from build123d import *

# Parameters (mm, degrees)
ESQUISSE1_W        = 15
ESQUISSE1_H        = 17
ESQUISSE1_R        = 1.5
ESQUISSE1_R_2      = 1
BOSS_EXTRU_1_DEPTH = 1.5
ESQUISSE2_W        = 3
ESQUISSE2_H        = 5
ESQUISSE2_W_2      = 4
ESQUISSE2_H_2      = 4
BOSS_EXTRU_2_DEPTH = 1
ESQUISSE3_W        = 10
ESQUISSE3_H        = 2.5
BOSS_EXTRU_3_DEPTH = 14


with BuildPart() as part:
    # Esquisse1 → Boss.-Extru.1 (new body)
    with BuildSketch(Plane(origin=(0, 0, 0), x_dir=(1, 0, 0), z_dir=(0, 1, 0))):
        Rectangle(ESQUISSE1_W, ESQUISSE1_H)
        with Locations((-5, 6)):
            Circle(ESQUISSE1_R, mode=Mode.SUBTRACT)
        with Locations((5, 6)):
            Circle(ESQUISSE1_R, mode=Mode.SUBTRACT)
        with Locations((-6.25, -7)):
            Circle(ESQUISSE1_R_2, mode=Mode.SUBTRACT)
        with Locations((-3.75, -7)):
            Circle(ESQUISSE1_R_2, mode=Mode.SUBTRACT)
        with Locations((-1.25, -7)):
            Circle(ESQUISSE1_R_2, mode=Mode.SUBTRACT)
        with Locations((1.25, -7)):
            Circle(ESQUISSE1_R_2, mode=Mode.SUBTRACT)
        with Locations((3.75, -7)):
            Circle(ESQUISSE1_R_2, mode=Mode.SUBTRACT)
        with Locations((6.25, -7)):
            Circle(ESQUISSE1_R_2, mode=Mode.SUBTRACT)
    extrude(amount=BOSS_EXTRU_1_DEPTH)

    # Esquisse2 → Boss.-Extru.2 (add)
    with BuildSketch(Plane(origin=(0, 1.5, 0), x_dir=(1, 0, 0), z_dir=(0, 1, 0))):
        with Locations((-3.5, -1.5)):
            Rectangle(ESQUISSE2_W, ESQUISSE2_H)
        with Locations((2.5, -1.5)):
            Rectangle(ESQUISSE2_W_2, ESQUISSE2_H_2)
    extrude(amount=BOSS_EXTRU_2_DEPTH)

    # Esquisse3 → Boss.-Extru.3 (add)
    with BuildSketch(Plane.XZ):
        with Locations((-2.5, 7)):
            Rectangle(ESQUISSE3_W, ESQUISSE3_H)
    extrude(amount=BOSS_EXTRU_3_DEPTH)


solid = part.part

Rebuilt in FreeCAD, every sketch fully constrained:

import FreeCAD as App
import Part
import Sketcher
Q = App.Units.Quantity

doc = App.newDocument("Part")
body = doc.addObject("PartDesign::Body", "Body")

sketch1 = doc.addObject("Sketcher::SketchObject", "Sketch")
body.addObject(sketch1)
sketch1.AttachmentSupport = (doc.XZ_Plane, [""])
sketch1.MapMode = "FlatFace"
sketch1.addGeometry([
    Part.LineSegment(App.Vector(-7.5, -8.5, 0), App.Vector(-7.5, 8.5, 0)),
    Part.LineSegment(App.Vector(-7.5, 8.5, 0), App.Vector(7.5, 8.5, 0)),
    Part.LineSegment(App.Vector(7.5, 8.5, 0), App.Vector(7.5, -8.5, 0)),
    Part.LineSegment(App.Vector(7.5, -8.5, 0), App.Vector(-7.5, -8.5, 0)),
    Part.Circle(App.Vector(-6.25, 7, 0), App.Vector(0, 0, 1), 1),
    Part.Circle(App.Vector(-3.75, 7, 0), App.Vector(0, 0, 1), 1),
    Part.Circle(App.Vector(-1.25, 7, 0), App.Vector(0, 0, 1), 1),
    Part.Circle(App.Vector(1.25, 7, 0), App.Vector(0, 0, 1), 1),
    Part.Circle(App.Vector(3.75, 7, 0), App.Vector(0, 0, 1), 1),
    Part.Circle(App.Vector(6.25, 7, 0), App.Vector(0, 0, 1), 1),
    Part.Circle(App.Vector(-5, -6, 0), App.Vector(0, 0, 1), 1.5),
    Part.Circle(App.Vector(5, -6, 0), App.Vector(0, 0, 1), 1.5),
], False)
sketch1.addConstraint([
    Sketcher.Constraint("Coincident", 0, 2, 1, 1),
    Sketcher.Constraint("Coincident", 1, 2, 2, 1),
    Sketcher.Constraint("Coincident", 2, 2, 3, 1),
    Sketcher.Constraint("Coincident", 3, 2, 0, 1),
    Sketcher.Constraint("Vertical", 0),
    Sketcher.Constraint("Horizontal", 1),
    Sketcher.Constraint("Vertical", 2),
    Sketcher.Constraint("Horizontal", 3),
    Sketcher.Constraint("Equal", 4, 5),
    Sketcher.Constraint("Equal", 5, 6),
    Sketcher.Constraint("Equal", 6, 7),
    Sketcher.Constraint("Equal", 7, 8),
    Sketcher.Constraint("Equal", 8, 9),
    Sketcher.Constraint("Equal", 10, 11),
    Sketcher.Constraint("Symmetric", 0, 2, 2, 2, -1, 1),
    Sketcher.Constraint("Symmetric", 6, 3, 7, 3, -2),
    Sketcher.Constraint("Symmetric", 5, 3, 8, 3, -2),
    Sketcher.Constraint("Symmetric", 4, 3, 9, 3, -2),
    Sketcher.Constraint("Symmetric", 10, 3, 11, 3, -2),
    Sketcher.Constraint("Horizontal", 4, 3, 5, 3),
    Sketcher.Constraint("Horizontal", 5, 3, 6, 3),
    Sketcher.Constraint("Diameter", 4, Q("2 mm")),
    Sketcher.Constraint("Diameter", 10, Q("3 mm")),
    Sketcher.Constraint("DistanceX", 1, 1, 1, 2, Q("15 mm")),
    Sketcher.Constraint("DistanceY", 0, 1, 0, 2, Q("17 mm")),
    Sketcher.Constraint("DistanceY", -1, 1, 4, 3, Q("7 mm")),
    Sketcher.Constraint("DistanceX", 10, 3, -1, 1, Q("5 mm")),
    Sketcher.Constraint("DistanceY", 10, 3, -1, 1, Q("6 mm")),
    Sketcher.Constraint("DistanceX", 4, 3, 6, 3, Q("5 mm")),
    Sketcher.Constraint("DistanceX", 5, 3, 7, 3, Q("5 mm")),
    Sketcher.Constraint("DistanceX", 4, 3, 5, 3, Q("2.5 mm")),
])
pad1 = doc.addObject("PartDesign::Pad", "Pad")
body.addObject(pad1)
pad1.Profile = sketch1
pad1.Length = 1.5
pad1.Reversed = True

sketch2 = doc.addObject("Sketcher::SketchObject", "Sketch001")
body.addObject(sketch2)
sketch2.AttachmentSupport = (doc.XZ_Plane, [""])
sketch2.MapMode = "FlatFace"
sketch2.AttachmentOffset = App.Placement(App.Vector(0, 0, -1.5), App.Rotation())
sketch2.addGeometry([
    Part.LineSegment(App.Vector(-5, -1, 0), App.Vector(-5, 4, 0)),
    Part.LineSegment(App.Vector(-5, 4, 0), App.Vector(-2, 4, 0)),
    Part.LineSegment(App.Vector(-2, 4, 0), App.Vector(-2, -1, 0)),
    Part.LineSegment(App.Vector(-2, -1, 0), App.Vector(-5, -1, 0)),
    Part.LineSegment(App.Vector(0.5, -0.5, 0), App.Vector(0.5, 3.5, 0)),
    Part.LineSegment(App.Vector(0.5, 3.5, 0), App.Vector(4.5, 3.5, 0)),
    Part.LineSegment(App.Vector(4.5, 3.5, 0), App.Vector(4.5, -0.5, 0)),
    Part.LineSegment(App.Vector(4.5, -0.5, 0), App.Vector(0.5, -0.5, 0)),
], False)
sketch2.addConstraint([
    Sketcher.Constraint("Coincident", 0, 2, 1, 1),
    Sketcher.Constraint("Coincident", 1, 2, 2, 1),
    Sketcher.Constraint("Coincident", 2, 2, 3, 1),
    Sketcher.Constraint("Coincident", 3, 2, 0, 1),
    Sketcher.Constraint("Coincident", 4, 2, 5, 1),
    Sketcher.Constraint("Coincident", 5, 2, 6, 1),
    Sketcher.Constraint("Coincident", 6, 2, 7, 1),
    Sketcher.Constraint("Coincident", 7, 2, 4, 1),
    Sketcher.Constraint("Vertical", 0),
    Sketcher.Constraint("Horizontal", 1),
    Sketcher.Constraint("Vertical", 2),
    Sketcher.Constraint("Horizontal", 3),
    Sketcher.Constraint("Vertical", 4),
    Sketcher.Constraint("Horizontal", 5),
    Sketcher.Constraint("Vertical", 6),
    Sketcher.Constraint("Horizontal", 7),
    Sketcher.Constraint("Equal", 7, 4),
    Sketcher.Constraint("DistanceX", 1, 1, 1, 2, Q("3 mm")),
    Sketcher.Constraint("DistanceX", 5, 1, 5, 2, Q("4 mm")),
    Sketcher.Constraint("DistanceY", 0, 1, 0, 2, Q("5 mm")),
    Sketcher.Constraint("DistanceX", 0, 2, -1, 1, Q("5 mm")),
    Sketcher.Constraint("DistanceY", -1, 1, 0, 2, Q("4 mm")),
    Sketcher.Constraint("DistanceX", -1, 1, 4, 2, Q("0.5 mm")),
    Sketcher.Constraint("DistanceY", -1, 1, 4, 2, Q("3.5 mm")),
])
pad2 = doc.addObject("PartDesign::Pad", "Pad001")
body.addObject(pad2)
pad2.Profile = sketch2
pad2.Length = 1
pad2.Reversed = True

sketch3 = doc.addObject("Sketcher::SketchObject", "Sketch002")
body.addObject(sketch3)
sketch3.AttachmentSupport = (doc.XZ_Plane, [""])
sketch3.MapMode = "FlatFace"
sketch3.addGeometry([
    Part.LineSegment(App.Vector(-7.5, 8.25, 0), App.Vector(-7.5, 5.75, 0)),
    Part.LineSegment(App.Vector(-7.5, 5.75, 0), App.Vector(2.5, 5.75, 0)),
    Part.LineSegment(App.Vector(2.5, 5.75, 0), App.Vector(2.5, 8.25, 0)),
    Part.LineSegment(App.Vector(2.5, 8.25, 0), App.Vector(-7.5, 8.25, 0)),
], False)
sketch3.addConstraint([
    Sketcher.Constraint("Coincident", 0, 2, 1, 1),
    Sketcher.Constraint("Coincident", 1, 2, 2, 1),
    Sketcher.Constraint("Coincident", 2, 2, 3, 1),
    Sketcher.Constraint("Coincident", 3, 2, 0, 1),
    Sketcher.Constraint("Vertical", 0),
    Sketcher.Constraint("Horizontal", 1),
    Sketcher.Constraint("Vertical", 2),
    Sketcher.Constraint("Horizontal", 3),
    Sketcher.Constraint("DistanceX", 1, 1, 1, 2, Q("10 mm")),
    Sketcher.Constraint("DistanceY", 0, 2, 0, 1, Q("2.5 mm")),
    Sketcher.Constraint("DistanceX", 0, 2, -1, 1, Q("7.5 mm")),
    Sketcher.Constraint("DistanceY", -1, 1, 0, 2, Q("5.75 mm")),
])
pad3 = doc.addObject("PartDesign::Pad", "Pad002")
body.addObject(pad3)
pad3.Profile = sketch3
pad3.Length = 14

doc.recompute()
